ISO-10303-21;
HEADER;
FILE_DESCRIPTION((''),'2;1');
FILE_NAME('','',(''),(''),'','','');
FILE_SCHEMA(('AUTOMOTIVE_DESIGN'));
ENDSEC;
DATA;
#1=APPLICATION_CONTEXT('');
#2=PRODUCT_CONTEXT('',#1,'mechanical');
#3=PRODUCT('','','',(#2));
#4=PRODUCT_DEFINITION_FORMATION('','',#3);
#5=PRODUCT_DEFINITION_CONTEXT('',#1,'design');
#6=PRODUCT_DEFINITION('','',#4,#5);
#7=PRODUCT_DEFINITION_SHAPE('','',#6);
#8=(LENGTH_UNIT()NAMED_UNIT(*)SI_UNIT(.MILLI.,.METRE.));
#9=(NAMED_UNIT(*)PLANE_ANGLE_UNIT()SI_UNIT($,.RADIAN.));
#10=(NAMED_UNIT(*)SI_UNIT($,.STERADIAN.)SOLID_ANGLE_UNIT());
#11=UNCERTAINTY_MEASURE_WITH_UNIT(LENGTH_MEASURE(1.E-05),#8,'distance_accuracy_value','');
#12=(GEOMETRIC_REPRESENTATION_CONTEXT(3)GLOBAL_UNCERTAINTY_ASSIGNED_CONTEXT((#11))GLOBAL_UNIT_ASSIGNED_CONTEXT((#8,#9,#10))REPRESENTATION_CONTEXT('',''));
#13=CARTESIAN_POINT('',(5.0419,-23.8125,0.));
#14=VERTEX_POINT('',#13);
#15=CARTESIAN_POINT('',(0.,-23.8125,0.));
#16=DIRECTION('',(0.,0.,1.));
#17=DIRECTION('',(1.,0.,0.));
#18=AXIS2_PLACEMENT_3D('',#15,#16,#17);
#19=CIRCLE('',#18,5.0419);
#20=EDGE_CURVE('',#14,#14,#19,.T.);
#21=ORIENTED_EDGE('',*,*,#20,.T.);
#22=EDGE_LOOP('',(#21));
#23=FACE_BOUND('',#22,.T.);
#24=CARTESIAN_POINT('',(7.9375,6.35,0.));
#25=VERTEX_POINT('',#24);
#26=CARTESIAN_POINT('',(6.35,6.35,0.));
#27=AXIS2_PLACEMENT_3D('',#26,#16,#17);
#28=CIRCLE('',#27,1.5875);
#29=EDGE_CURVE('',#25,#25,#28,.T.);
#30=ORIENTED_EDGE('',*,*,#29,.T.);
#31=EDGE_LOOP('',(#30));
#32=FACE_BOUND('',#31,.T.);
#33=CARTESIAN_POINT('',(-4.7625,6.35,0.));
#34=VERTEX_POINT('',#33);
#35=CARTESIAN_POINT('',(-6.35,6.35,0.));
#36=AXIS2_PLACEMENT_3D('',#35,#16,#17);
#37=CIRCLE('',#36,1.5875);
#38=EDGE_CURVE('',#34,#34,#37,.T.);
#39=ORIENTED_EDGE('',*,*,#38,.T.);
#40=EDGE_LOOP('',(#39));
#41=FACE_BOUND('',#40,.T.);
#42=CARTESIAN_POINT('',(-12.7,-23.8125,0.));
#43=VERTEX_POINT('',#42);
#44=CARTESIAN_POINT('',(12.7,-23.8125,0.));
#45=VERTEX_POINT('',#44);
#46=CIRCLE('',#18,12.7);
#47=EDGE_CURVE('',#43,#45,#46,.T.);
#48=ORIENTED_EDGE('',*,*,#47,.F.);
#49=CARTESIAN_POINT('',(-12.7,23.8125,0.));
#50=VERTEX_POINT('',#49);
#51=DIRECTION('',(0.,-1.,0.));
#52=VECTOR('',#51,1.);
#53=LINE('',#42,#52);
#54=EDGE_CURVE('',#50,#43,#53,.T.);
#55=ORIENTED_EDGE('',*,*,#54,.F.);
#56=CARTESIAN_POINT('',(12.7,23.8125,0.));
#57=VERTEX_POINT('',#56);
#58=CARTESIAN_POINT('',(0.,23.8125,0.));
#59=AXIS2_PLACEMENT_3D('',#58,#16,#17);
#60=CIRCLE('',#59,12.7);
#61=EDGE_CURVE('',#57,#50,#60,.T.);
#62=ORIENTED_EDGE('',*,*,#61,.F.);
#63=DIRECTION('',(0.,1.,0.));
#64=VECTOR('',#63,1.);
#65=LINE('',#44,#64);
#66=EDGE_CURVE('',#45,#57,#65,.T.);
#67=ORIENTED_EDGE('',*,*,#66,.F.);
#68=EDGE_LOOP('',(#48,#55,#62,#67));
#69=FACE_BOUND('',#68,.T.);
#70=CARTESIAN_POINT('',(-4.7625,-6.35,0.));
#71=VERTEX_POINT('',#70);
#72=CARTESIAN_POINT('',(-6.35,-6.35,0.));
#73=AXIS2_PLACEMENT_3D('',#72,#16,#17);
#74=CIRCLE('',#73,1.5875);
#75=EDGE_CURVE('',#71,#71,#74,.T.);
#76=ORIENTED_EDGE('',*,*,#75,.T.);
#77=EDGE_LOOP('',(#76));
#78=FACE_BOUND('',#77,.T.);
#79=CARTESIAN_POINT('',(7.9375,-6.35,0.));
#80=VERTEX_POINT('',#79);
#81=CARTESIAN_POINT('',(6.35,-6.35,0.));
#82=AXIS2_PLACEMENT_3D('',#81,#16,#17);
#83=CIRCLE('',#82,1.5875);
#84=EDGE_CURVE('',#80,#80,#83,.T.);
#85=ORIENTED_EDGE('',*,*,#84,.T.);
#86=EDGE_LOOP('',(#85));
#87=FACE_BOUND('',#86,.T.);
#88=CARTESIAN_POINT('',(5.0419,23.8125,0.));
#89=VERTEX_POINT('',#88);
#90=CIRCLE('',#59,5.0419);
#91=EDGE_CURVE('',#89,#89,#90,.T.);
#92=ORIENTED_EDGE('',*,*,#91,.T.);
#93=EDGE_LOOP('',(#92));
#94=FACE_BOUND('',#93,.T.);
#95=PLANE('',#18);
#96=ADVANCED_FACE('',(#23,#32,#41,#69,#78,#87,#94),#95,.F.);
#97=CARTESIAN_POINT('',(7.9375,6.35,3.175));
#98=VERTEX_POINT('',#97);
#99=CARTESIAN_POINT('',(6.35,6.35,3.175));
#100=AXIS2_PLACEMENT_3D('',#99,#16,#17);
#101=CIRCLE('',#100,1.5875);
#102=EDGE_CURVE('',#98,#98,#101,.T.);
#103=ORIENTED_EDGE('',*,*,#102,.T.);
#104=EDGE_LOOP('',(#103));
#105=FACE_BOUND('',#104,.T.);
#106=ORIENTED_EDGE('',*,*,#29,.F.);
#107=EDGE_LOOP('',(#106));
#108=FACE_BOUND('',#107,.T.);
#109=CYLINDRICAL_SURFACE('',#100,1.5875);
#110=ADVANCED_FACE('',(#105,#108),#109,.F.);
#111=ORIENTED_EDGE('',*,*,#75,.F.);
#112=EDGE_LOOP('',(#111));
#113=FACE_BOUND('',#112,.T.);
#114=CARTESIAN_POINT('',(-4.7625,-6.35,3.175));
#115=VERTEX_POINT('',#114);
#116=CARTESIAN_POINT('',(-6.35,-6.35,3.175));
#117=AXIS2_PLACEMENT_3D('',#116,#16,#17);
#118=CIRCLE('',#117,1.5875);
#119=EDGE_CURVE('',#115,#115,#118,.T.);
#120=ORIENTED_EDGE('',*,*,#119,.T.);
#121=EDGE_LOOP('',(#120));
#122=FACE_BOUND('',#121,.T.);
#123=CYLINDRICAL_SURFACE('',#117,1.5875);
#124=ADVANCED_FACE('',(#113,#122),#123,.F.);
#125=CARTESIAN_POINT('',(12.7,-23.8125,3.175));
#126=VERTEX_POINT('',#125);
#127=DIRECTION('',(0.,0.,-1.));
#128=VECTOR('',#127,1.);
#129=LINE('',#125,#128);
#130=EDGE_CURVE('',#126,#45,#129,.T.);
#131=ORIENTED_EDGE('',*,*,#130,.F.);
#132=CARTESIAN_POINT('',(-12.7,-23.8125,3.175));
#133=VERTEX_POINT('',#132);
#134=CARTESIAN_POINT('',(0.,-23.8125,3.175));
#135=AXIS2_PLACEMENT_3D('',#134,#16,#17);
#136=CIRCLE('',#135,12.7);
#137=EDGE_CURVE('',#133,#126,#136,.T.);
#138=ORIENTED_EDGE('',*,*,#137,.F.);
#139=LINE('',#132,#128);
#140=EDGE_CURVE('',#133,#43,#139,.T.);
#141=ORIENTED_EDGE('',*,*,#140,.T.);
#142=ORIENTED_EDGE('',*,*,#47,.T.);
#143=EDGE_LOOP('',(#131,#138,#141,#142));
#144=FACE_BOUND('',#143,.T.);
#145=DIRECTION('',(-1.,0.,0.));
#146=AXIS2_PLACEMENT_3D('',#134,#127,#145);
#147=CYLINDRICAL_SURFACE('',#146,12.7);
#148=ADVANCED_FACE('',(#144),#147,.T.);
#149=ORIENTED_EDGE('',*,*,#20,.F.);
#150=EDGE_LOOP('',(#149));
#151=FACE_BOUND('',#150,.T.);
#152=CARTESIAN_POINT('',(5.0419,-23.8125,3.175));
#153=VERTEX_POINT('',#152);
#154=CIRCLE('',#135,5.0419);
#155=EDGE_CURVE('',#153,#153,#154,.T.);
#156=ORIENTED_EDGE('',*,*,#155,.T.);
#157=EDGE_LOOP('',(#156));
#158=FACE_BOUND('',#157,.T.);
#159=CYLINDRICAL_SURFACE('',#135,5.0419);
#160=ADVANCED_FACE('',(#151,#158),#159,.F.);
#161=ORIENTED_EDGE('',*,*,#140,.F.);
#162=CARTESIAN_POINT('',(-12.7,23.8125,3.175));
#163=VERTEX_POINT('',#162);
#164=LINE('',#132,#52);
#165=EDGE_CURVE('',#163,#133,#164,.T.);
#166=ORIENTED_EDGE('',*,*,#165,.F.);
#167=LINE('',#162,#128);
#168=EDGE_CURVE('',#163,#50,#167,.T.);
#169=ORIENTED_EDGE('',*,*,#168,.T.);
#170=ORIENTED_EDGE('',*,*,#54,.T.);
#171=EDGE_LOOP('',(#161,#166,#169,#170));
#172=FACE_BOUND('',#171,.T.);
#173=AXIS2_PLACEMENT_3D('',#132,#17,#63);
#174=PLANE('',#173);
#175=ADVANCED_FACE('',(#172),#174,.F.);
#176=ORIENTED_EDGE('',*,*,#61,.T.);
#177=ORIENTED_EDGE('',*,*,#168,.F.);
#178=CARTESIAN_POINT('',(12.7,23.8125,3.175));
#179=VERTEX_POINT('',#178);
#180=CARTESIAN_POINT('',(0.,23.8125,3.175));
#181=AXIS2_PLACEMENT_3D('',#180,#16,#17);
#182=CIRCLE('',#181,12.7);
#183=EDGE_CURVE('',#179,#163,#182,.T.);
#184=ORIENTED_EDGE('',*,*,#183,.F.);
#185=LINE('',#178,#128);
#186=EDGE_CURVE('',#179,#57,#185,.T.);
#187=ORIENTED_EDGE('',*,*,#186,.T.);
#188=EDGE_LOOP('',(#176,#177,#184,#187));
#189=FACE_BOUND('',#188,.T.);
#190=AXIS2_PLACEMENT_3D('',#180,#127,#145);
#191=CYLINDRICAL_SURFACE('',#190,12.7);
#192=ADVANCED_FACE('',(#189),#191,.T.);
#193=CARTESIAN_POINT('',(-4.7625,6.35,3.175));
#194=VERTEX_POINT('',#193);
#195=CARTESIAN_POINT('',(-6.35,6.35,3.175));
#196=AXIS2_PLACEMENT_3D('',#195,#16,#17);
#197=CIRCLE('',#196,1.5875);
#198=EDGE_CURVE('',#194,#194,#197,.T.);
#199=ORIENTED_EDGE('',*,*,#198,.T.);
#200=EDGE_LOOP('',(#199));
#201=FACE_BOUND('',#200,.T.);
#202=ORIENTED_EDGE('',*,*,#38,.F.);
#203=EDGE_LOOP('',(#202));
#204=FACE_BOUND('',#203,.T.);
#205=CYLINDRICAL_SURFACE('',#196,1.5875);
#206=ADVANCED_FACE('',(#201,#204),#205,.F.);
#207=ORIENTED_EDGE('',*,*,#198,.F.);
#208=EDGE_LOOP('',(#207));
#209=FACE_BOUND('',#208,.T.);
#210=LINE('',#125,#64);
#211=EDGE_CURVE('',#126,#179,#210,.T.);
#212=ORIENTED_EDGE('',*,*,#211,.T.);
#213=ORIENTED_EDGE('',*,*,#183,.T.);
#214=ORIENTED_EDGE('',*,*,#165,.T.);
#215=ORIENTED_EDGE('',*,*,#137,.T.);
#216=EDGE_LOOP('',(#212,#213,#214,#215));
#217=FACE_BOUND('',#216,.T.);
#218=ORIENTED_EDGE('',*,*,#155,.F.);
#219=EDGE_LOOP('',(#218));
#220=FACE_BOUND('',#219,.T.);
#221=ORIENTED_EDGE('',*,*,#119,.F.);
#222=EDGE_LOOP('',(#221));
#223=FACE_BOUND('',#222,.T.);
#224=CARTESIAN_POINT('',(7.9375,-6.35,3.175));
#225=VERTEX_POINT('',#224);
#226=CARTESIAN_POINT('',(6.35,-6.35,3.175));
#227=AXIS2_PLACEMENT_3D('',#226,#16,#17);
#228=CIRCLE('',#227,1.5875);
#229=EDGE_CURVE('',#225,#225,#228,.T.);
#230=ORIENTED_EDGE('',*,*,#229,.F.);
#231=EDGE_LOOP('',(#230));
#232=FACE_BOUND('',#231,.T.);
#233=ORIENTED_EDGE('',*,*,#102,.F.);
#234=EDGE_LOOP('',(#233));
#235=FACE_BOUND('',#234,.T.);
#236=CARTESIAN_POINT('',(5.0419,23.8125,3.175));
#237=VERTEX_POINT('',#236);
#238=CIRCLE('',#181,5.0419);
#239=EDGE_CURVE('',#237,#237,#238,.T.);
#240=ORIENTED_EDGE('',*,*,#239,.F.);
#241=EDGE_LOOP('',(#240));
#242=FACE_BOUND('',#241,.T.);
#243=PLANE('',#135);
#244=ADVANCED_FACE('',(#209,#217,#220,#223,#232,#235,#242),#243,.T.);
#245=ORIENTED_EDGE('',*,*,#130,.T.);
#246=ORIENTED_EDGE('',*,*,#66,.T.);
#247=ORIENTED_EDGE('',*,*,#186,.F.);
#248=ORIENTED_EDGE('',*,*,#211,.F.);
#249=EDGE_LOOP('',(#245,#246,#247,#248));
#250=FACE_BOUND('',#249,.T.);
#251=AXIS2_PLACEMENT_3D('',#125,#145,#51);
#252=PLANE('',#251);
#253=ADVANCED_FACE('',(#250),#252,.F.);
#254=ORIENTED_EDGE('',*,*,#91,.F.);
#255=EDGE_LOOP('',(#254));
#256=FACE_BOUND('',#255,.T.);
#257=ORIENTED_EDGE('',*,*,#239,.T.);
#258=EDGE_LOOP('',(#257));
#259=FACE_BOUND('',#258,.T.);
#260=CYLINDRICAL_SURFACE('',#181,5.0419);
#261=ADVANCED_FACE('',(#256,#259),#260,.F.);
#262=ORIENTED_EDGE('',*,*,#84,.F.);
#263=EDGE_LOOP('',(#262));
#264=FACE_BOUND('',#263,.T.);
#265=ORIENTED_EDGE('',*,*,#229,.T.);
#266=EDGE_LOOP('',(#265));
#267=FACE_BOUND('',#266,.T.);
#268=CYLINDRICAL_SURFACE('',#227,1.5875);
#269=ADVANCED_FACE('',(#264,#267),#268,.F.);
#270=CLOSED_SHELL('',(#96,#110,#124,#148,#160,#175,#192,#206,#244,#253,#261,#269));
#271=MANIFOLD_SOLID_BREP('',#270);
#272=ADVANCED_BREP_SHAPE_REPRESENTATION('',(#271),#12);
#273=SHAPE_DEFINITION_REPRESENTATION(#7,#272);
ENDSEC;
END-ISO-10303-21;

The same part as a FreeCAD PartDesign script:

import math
import FreeCAD as App
import Part
import Sketcher

V = App.Vector
Q = App.Units.Quantity

doc = App.newDocument("Part")
body = doc.addObject("PartDesign::Body", "Body")

# Sketch on XY plane
sketch1 = doc.addObject("Sketcher::SketchObject", "Sketch")
body.addObject(sketch1)
sketch1.AttachmentSupport = (doc.XY_Plane, [""])
sketch1.MapMode = "FlatFace"
sketch1.addGeometry([
    Part.LineSegment(V(-13, 24, 0), V(-13, -24, 0)),
    Part.ArcOfCircle(Part.Circle(V(0, -24, 0), V(0, 0, 1), 13), math.radians(180), math.radians(360)),
    Part.LineSegment(V(13, -24, 0), V(13, 24, 0)),
    Part.ArcOfCircle(Part.Circle(V(0, 24, 0), V(0, 0, 1), 13), math.radians(0), math.radians(180)),
], False)
sketch1.addConstraint([
    Sketcher.Constraint("Tangent", 0, 2, 1, 1),
    Sketcher.Constraint("Tangent", 1, 2, 2, 1),
    Sketcher.Constraint("Tangent", 2, 2, 3, 1),
    Sketcher.Constraint("Tangent", 3, 2, 0, 1),
    Sketcher.Constraint("Vertical", 0),
    Sketcher.Constraint("Vertical", 2),
    Sketcher.Constraint("Symmetric", 1, 3, 3, 3, -1, 1),
    Sketcher.Constraint("Radius", 1, Q("0.5 in")),
    Sketcher.Constraint("DistanceY", 0, 2, 0, 1, Q("1.875 in")),
])
pad1 = doc.addObject("PartDesign::Pad", "Pad")
body.addObject(pad1)
pad1.Profile = sketch1
pad1.Length = Q("0.125 in")

# Sketch on XY plane
sketch2 = doc.addObject("Sketcher::SketchObject", "Sketch001")
body.addObject(sketch2)
sketch2.AttachmentSupport = (doc.XY_Plane, [""])
sketch2.MapMode = "FlatFace"
sketch2.AttachmentOffset = App.Placement(V(0, 0, 0.125 * 25.4), App.Rotation())
sketch2.addGeometry([
    Part.Circle(V(0, 24, 0), V(0, 0, 1), 5),
    Part.Circle(V(0, -24, 0), V(0, 0, 1), 5),
], False)
sketch2.addConstraint([
    Sketcher.Constraint("Equal", 0, 1),
    Sketcher.Constraint("Symmetric", 0, 3, 1, 3, -1, 1),
    Sketcher.Constraint("PointOnObject", 0, 3, -2),
    Sketcher.Constraint("Diameter", 0, Q("0.397 in")),
    Sketcher.Constraint("DistanceY", -1, 1, 0, 3, Q("0.9375 in")),
])
doc.recompute()
hole = doc.addObject("PartDesign::Hole", "Hole")
body.addObject(hole)
hole.Profile = sketch2
hole.ThreadType = "None"
hole.Diameter = Q("0.397 in")
hole.DepthType = "ThroughAll"

# Sketch on XY plane
sketch3 = doc.addObject("Sketcher::SketchObject", "Sketch002")
body.addObject(sketch3)
sketch3.AttachmentSupport = (doc.XY_Plane, [""])
sketch3.MapMode = "FlatFace"
sketch3.AttachmentOffset = App.Placement(V(0, 0, 0.125 * 25.4), App.Rotation())
sketch3.addGeometry([
    Part.Circle(V(6.3, -6.3, 0), V(0, 0, 1), 1.6),
    Part.Circle(V(6.3, 6.3, 0), V(0, 0, 1), 1.6),
    Part.Circle(V(-6.3, -6.3, 0), V(0, 0, 1), 1.6),
    Part.Circle(V(-6.3, 6.3, 0), V(0, 0, 1), 1.6),
], False)
sketch3.addConstraint([
    Sketcher.Constraint("Equal", 0, 1),
    Sketcher.Constraint("Equal", 1, 2),
    Sketcher.Constraint("Equal", 2, 3),
    Sketcher.Constraint("Symmetric", 1, 3, 2, 3, -1, 1),
    Sketcher.Constraint("Symmetric", 0, 3, 3, 3, -1, 1),
    Sketcher.Constraint("Symmetric", 0, 3, 2, 3, -2),
    Sketcher.Constraint("Diameter", 0, Q("0.125 in")),
    Sketcher.Constraint("DistanceY", 0, 3, 1, 3, Q("0.5 in")),
    Sketcher.Constraint("DistanceX", 2, 3, 0, 3, Q("0.5 in")),
])
doc.recompute()
hole2 = doc.addObject("PartDesign::Hole", "Hole001")
body.addObject(hole2)
hole2.Profile = sketch3
hole2.ThreadType = "None"
hole2.Diameter = Q("0.125 in")
hole2.DepthType = "ThroughAll"

doc.recompute()
